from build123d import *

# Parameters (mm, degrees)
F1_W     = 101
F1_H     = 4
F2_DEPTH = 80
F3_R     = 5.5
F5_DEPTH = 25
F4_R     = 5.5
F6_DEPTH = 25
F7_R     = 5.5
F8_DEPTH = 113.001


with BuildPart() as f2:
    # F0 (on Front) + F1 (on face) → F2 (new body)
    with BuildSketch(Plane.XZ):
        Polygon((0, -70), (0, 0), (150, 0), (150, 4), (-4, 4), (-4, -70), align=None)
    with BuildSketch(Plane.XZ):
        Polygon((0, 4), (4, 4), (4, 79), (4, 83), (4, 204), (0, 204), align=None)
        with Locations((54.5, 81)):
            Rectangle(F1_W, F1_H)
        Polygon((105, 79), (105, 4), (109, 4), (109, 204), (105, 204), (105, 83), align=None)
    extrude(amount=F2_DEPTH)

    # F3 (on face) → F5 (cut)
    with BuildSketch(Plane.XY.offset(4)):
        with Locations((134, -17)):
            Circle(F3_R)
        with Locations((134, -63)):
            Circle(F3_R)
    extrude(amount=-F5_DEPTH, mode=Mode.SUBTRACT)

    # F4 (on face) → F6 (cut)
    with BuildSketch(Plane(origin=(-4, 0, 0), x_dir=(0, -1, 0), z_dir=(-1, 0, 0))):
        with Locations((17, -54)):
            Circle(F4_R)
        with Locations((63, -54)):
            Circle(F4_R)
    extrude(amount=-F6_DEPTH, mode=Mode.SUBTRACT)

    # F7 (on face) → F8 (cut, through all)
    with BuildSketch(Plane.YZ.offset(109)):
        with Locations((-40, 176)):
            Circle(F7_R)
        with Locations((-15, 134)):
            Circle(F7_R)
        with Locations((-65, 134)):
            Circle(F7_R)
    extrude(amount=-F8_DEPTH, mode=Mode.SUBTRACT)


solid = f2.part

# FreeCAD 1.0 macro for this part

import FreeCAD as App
import Part
import Sketcher
from FreeCAD import Vector
Q = App.Units.Quantity


def add_polygon(sketch, points):
    """Adds a closed chain of lines whose ends are joined by coincident constraints."""
    first, n = sketch.GeometryCount, len(points)
    for a, b in zip(points, points[1:] + points[:1]):
        sketch.addGeometry(Part.LineSegment(App.Vector(*a, 0), App.Vector(*b, 0)), False)
    for i in range(n):
        sketch.addConstraint(Sketcher.Constraint("Coincident", first + i, 2, first + (i + 1) % n, 1))

doc = App.newDocument("Part")
params = doc.addObject("Spreadsheet::Sheet", "Params")
for row, (alias, value) in enumerate([
    ("sketch1_width", "150 mm"),
    ("sketch1_width2", "41 mm"),
    ("sketch1_width3", "4 mm"),
    ("sketch1_height", "70 mm"),
    ("sketch1_height2", "200 mm"),
    ("pad1_length", "80 mm"),
    ("sketch2_diameter", "11 mm"),
    ("pocket1_length", "25 mm"),
    ("sketch3_diameter", "11 mm"),
    ("pocket2_length", "25 mm"),
    ("sketch4_diameter", "11 mm"),
], start=1):
    params.set(f"A{row}", alias)
    params.set(f"B{row}", "=" + value)
    params.setAlias(f"B{row}", alias)

body = doc.addObject("PartDesign::Body", "Body")

sketch1 = doc.addObject("Sketcher::SketchObject", "Sketch")
body.addObject(sketch1)
sketch1.AttachmentSupport = (doc.XZ_Plane, [""])
sketch1.MapMode = "FlatFace"
add_polygon(sketch1, [(0, -70), (0, 0), (150, 0), (150, 4), (109, 4), (109, 204), (105, 204), (105, 83), (4, 83), (4, 204), (0, 204), (0, 4), (-4, 4), (-4, -70)])
add_polygon(sketch1, [(105, 4), (4, 4), (4, 79), (105, 79)])
sketch1.addConstraint([
    Sketcher.Constraint("Vertical", 0),
    Sketcher.Constraint("Horizontal", 1),
    Sketcher.Constraint("Vertical", 2),
    Sketcher.Constraint("Horizontal", 3),
    Sketcher.Constraint("Vertical", 4),
    Sketcher.Constraint("Horizontal", 5),
    Sketcher.Constraint("Vertical", 6),
    Sketcher.Constraint("Horizontal", 7),
    Sketcher.Constraint("Vertical", 8),
    Sketcher.Constraint("Horizontal", 9),
    Sketcher.Constraint("Vertical", 10),
    Sketcher.Constraint("Horizontal", 11),
    Sketcher.Constraint("Vertical", 12),
    Sketcher.Constraint("Horizontal", 13),
    Sketcher.Constraint("Horizontal", 14),
    Sketcher.Constraint("Vertical", 15),
    Sketcher.Constraint("Horizontal", 16),
    Sketcher.Constraint("Vertical", 17),
    Sketcher.Constraint("Coincident", 0, 2, -1, 1),
    Sketcher.Constraint("Symmetric", 11, 2, 14, 2, -2),
    Sketcher.Constraint("PointOnObject", 9, 2, -2),
    Sketcher.Constraint("Horizontal", 5, 2, 8, 2),
    Sketcher.Constraint("Horizontal", 3, 2, 10, 2),
    Sketcher.Constraint("Vertical", 8, 2, 14, 2),
    Sketcher.Constraint("Vertical", 6, 2, 16, 2),
    Sketcher.Constraint("Equal", 5, 9),
    Sketcher.Constraint("Equal", 13, 2),
    Sketcher.Constraint("DistanceX", 1, 1, 1, 2, Q("150 mm")),
    Sketcher.Constraint("DistanceX", 3, 2, 3, 1, Q("41 mm")),
    Sketcher.Constraint("DistanceX", 5, 2, 5, 1, Q("4 mm")),
    Sketcher.Constraint("DistanceY", 0, 1, 0, 2, Q("70 mm")),
    Sketcher.Constraint("DistanceY", 4, 1, 4, 2, Q("200 mm")),
    Sketcher.Constraint("DistanceY", 6, 2, 6, 1, Q("121 mm")),
    Sketcher.Constraint("DistanceY", 15, 1, 15, 2, Q("75 mm")),
])
sketch1.setExpression("Constraints[45]", "Params.sketch1_width")
sketch1.setExpression("Constraints[46]", "Params.sketch1_width2")
sketch1.setExpression("Constraints[47]", "Params.sketch1_width3")
sketch1.setExpression("Constraints[48]", "Params.sketch1_height")
sketch1.setExpression("Constraints[49]", "Params.sketch1_height2")
pad1 = doc.addObject("PartDesign::Pad", "Pad")
body.addObject(pad1)
pad1.Profile = sketch1
pad1.setExpression("Length", "Params.pad1_length")

sketch2 = doc.addObject("Sketcher::SketchObject", "Sketch001")
body.addObject(sketch2)
sketch2.AttachmentSupport = (doc.XY_Plane, [""])
sketch2.MapMode = "FlatFace"
sketch2.AttachmentOffset = App.Placement(Vector(0, 0, 4), App.Rotation())
sketch2.addGeometry([
    Part.Circle(Vector(134, -17, 0), Vector(0, 0, 1), 5.5),
    Part.Circle(Vector(134, -63, 0), Vector(0, 0, 1), 5.5),
], False)
sketch2.addConstraint([
    Sketcher.Constraint("Equal", 0, 1),
    Sketcher.Constraint("Vertical", 0, 3, 1, 3),
    Sketcher.Constraint("Diameter", 0, Q("11 mm")),
    Sketcher.Constraint("DistanceX", -1, 1, 0, 3, Q("134 mm")),
    Sketcher.Constraint("DistanceY", 0, 3, -1, 1, Q("17 mm")),
    Sketcher.Constraint("DistanceY", 1, 3, -1, 1, Q("63 mm")),
])
sketch2.setExpression("Constraints[2]", "Params.sketch2_diameter")
pocket1 = doc.addObject("PartDesign::Pocket", "Pocket")
body.addObject(pocket1)
pocket1.Profile = sketch2
pocket1.setExpression("Length", "Params.pocket1_length")

sketch3 = doc.addObject("Sketcher::SketchObject", "Sketch002")
body.addObject(sketch3)
sketch3.AttachmentSupport = (doc.YZ_Plane, [""])
sketch3.MapMode = "FlatFace"
sketch3.AttachmentOffset = App.Placement(Vector(0, 0, -4), App.Rotation())
sketch3.addGeometry([
    Part.Circle(Vector(-17, -54, 0), Vector(0, 0, 1), 5.5),
    Part.Circle(Vector(-63, -54, 0), Vector(0, 0, 1), 5.5),
], False)
sketch3.addConstraint([
    Sketcher.Constraint("Equal", 0, 1),
    Sketcher.Constraint("Horizontal", 0, 3, 1, 3),
    Sketcher.Constraint("Diameter", 0, Q("11 mm")),
    Sketcher.Constraint("DistanceX", 0, 3, -1, 1, Q("17 mm")),
    Sketcher.Constraint("DistanceY", 0, 3, -1, 1, Q("54 mm")),
    Sketcher.Constraint("DistanceX", 1, 3, -1, 1, Q("63 mm")),
])
sketch3.setExpression("Constraints[2]", "Params.sketch3_diameter")
pocket2 = doc.addObject("PartDesign::Pocket", "Pocket001")
body.addObject(pocket2)
pocket2.Profile = sketch3
pocket2.setExpression("Length", "Params.pocket2_length")
pocket2.Reversed = True

sketch4 = doc.addObject("Sketcher::SketchObject", "Sketch003")
body.addObject(sketch4)
sketch4.AttachmentSupport = (doc.YZ_Plane, [""])
sketch4.MapMode = "FlatFace"
sketch4.AttachmentOffset = App.Placement(Vector(0, 0, 109), App.Rotation())
sketch4.addGeometry([
    Part.Circle(Vector(-40, 176, 0), Vector(0, 0, 1), 5.5),
    Part.Circle(Vector(-15, 134, 0), Vector(0, 0, 1), 5.5),
    Part.Circle(Vector(-65, 134, 0), Vector(0, 0, 1), 5.5),
], False)
sketch4.addConstraint([
    Sketcher.Constraint("Equal", 0, 1),
    Sketcher.Constraint("Equal", 1, 2),
    Sketcher.Constraint("Horizontal", 1, 3, 2, 3),
    Sketcher.Constraint("Diameter", 0, Q("11 mm")),
    Sketcher.Constraint("DistanceX", 0, 3, -1, 1, Q("40 mm")),
    Sketcher.Constraint("DistanceY", -1, 1, 0, 3, Q("176 mm")),
    Sketcher.Constraint("DistanceX", 1, 3, -1, 1, Q("15 mm")),
    Sketcher.Constraint("DistanceY", -1, 1, 1, 3, Q("134 mm")),
    Sketcher.Constraint("DistanceX", 2, 3, -1, 1, Q("65 mm")),
])
sketch4.setExpression("Constraints[3]", "Params.sketch4_diameter")
pocket3 = doc.addObject("PartDesign::Pocket", "Pocket002")
body.addObject(pocket3)
pocket3.Profile = sketch4
pocket3.Type = "ThroughAll"

doc.recompute()
